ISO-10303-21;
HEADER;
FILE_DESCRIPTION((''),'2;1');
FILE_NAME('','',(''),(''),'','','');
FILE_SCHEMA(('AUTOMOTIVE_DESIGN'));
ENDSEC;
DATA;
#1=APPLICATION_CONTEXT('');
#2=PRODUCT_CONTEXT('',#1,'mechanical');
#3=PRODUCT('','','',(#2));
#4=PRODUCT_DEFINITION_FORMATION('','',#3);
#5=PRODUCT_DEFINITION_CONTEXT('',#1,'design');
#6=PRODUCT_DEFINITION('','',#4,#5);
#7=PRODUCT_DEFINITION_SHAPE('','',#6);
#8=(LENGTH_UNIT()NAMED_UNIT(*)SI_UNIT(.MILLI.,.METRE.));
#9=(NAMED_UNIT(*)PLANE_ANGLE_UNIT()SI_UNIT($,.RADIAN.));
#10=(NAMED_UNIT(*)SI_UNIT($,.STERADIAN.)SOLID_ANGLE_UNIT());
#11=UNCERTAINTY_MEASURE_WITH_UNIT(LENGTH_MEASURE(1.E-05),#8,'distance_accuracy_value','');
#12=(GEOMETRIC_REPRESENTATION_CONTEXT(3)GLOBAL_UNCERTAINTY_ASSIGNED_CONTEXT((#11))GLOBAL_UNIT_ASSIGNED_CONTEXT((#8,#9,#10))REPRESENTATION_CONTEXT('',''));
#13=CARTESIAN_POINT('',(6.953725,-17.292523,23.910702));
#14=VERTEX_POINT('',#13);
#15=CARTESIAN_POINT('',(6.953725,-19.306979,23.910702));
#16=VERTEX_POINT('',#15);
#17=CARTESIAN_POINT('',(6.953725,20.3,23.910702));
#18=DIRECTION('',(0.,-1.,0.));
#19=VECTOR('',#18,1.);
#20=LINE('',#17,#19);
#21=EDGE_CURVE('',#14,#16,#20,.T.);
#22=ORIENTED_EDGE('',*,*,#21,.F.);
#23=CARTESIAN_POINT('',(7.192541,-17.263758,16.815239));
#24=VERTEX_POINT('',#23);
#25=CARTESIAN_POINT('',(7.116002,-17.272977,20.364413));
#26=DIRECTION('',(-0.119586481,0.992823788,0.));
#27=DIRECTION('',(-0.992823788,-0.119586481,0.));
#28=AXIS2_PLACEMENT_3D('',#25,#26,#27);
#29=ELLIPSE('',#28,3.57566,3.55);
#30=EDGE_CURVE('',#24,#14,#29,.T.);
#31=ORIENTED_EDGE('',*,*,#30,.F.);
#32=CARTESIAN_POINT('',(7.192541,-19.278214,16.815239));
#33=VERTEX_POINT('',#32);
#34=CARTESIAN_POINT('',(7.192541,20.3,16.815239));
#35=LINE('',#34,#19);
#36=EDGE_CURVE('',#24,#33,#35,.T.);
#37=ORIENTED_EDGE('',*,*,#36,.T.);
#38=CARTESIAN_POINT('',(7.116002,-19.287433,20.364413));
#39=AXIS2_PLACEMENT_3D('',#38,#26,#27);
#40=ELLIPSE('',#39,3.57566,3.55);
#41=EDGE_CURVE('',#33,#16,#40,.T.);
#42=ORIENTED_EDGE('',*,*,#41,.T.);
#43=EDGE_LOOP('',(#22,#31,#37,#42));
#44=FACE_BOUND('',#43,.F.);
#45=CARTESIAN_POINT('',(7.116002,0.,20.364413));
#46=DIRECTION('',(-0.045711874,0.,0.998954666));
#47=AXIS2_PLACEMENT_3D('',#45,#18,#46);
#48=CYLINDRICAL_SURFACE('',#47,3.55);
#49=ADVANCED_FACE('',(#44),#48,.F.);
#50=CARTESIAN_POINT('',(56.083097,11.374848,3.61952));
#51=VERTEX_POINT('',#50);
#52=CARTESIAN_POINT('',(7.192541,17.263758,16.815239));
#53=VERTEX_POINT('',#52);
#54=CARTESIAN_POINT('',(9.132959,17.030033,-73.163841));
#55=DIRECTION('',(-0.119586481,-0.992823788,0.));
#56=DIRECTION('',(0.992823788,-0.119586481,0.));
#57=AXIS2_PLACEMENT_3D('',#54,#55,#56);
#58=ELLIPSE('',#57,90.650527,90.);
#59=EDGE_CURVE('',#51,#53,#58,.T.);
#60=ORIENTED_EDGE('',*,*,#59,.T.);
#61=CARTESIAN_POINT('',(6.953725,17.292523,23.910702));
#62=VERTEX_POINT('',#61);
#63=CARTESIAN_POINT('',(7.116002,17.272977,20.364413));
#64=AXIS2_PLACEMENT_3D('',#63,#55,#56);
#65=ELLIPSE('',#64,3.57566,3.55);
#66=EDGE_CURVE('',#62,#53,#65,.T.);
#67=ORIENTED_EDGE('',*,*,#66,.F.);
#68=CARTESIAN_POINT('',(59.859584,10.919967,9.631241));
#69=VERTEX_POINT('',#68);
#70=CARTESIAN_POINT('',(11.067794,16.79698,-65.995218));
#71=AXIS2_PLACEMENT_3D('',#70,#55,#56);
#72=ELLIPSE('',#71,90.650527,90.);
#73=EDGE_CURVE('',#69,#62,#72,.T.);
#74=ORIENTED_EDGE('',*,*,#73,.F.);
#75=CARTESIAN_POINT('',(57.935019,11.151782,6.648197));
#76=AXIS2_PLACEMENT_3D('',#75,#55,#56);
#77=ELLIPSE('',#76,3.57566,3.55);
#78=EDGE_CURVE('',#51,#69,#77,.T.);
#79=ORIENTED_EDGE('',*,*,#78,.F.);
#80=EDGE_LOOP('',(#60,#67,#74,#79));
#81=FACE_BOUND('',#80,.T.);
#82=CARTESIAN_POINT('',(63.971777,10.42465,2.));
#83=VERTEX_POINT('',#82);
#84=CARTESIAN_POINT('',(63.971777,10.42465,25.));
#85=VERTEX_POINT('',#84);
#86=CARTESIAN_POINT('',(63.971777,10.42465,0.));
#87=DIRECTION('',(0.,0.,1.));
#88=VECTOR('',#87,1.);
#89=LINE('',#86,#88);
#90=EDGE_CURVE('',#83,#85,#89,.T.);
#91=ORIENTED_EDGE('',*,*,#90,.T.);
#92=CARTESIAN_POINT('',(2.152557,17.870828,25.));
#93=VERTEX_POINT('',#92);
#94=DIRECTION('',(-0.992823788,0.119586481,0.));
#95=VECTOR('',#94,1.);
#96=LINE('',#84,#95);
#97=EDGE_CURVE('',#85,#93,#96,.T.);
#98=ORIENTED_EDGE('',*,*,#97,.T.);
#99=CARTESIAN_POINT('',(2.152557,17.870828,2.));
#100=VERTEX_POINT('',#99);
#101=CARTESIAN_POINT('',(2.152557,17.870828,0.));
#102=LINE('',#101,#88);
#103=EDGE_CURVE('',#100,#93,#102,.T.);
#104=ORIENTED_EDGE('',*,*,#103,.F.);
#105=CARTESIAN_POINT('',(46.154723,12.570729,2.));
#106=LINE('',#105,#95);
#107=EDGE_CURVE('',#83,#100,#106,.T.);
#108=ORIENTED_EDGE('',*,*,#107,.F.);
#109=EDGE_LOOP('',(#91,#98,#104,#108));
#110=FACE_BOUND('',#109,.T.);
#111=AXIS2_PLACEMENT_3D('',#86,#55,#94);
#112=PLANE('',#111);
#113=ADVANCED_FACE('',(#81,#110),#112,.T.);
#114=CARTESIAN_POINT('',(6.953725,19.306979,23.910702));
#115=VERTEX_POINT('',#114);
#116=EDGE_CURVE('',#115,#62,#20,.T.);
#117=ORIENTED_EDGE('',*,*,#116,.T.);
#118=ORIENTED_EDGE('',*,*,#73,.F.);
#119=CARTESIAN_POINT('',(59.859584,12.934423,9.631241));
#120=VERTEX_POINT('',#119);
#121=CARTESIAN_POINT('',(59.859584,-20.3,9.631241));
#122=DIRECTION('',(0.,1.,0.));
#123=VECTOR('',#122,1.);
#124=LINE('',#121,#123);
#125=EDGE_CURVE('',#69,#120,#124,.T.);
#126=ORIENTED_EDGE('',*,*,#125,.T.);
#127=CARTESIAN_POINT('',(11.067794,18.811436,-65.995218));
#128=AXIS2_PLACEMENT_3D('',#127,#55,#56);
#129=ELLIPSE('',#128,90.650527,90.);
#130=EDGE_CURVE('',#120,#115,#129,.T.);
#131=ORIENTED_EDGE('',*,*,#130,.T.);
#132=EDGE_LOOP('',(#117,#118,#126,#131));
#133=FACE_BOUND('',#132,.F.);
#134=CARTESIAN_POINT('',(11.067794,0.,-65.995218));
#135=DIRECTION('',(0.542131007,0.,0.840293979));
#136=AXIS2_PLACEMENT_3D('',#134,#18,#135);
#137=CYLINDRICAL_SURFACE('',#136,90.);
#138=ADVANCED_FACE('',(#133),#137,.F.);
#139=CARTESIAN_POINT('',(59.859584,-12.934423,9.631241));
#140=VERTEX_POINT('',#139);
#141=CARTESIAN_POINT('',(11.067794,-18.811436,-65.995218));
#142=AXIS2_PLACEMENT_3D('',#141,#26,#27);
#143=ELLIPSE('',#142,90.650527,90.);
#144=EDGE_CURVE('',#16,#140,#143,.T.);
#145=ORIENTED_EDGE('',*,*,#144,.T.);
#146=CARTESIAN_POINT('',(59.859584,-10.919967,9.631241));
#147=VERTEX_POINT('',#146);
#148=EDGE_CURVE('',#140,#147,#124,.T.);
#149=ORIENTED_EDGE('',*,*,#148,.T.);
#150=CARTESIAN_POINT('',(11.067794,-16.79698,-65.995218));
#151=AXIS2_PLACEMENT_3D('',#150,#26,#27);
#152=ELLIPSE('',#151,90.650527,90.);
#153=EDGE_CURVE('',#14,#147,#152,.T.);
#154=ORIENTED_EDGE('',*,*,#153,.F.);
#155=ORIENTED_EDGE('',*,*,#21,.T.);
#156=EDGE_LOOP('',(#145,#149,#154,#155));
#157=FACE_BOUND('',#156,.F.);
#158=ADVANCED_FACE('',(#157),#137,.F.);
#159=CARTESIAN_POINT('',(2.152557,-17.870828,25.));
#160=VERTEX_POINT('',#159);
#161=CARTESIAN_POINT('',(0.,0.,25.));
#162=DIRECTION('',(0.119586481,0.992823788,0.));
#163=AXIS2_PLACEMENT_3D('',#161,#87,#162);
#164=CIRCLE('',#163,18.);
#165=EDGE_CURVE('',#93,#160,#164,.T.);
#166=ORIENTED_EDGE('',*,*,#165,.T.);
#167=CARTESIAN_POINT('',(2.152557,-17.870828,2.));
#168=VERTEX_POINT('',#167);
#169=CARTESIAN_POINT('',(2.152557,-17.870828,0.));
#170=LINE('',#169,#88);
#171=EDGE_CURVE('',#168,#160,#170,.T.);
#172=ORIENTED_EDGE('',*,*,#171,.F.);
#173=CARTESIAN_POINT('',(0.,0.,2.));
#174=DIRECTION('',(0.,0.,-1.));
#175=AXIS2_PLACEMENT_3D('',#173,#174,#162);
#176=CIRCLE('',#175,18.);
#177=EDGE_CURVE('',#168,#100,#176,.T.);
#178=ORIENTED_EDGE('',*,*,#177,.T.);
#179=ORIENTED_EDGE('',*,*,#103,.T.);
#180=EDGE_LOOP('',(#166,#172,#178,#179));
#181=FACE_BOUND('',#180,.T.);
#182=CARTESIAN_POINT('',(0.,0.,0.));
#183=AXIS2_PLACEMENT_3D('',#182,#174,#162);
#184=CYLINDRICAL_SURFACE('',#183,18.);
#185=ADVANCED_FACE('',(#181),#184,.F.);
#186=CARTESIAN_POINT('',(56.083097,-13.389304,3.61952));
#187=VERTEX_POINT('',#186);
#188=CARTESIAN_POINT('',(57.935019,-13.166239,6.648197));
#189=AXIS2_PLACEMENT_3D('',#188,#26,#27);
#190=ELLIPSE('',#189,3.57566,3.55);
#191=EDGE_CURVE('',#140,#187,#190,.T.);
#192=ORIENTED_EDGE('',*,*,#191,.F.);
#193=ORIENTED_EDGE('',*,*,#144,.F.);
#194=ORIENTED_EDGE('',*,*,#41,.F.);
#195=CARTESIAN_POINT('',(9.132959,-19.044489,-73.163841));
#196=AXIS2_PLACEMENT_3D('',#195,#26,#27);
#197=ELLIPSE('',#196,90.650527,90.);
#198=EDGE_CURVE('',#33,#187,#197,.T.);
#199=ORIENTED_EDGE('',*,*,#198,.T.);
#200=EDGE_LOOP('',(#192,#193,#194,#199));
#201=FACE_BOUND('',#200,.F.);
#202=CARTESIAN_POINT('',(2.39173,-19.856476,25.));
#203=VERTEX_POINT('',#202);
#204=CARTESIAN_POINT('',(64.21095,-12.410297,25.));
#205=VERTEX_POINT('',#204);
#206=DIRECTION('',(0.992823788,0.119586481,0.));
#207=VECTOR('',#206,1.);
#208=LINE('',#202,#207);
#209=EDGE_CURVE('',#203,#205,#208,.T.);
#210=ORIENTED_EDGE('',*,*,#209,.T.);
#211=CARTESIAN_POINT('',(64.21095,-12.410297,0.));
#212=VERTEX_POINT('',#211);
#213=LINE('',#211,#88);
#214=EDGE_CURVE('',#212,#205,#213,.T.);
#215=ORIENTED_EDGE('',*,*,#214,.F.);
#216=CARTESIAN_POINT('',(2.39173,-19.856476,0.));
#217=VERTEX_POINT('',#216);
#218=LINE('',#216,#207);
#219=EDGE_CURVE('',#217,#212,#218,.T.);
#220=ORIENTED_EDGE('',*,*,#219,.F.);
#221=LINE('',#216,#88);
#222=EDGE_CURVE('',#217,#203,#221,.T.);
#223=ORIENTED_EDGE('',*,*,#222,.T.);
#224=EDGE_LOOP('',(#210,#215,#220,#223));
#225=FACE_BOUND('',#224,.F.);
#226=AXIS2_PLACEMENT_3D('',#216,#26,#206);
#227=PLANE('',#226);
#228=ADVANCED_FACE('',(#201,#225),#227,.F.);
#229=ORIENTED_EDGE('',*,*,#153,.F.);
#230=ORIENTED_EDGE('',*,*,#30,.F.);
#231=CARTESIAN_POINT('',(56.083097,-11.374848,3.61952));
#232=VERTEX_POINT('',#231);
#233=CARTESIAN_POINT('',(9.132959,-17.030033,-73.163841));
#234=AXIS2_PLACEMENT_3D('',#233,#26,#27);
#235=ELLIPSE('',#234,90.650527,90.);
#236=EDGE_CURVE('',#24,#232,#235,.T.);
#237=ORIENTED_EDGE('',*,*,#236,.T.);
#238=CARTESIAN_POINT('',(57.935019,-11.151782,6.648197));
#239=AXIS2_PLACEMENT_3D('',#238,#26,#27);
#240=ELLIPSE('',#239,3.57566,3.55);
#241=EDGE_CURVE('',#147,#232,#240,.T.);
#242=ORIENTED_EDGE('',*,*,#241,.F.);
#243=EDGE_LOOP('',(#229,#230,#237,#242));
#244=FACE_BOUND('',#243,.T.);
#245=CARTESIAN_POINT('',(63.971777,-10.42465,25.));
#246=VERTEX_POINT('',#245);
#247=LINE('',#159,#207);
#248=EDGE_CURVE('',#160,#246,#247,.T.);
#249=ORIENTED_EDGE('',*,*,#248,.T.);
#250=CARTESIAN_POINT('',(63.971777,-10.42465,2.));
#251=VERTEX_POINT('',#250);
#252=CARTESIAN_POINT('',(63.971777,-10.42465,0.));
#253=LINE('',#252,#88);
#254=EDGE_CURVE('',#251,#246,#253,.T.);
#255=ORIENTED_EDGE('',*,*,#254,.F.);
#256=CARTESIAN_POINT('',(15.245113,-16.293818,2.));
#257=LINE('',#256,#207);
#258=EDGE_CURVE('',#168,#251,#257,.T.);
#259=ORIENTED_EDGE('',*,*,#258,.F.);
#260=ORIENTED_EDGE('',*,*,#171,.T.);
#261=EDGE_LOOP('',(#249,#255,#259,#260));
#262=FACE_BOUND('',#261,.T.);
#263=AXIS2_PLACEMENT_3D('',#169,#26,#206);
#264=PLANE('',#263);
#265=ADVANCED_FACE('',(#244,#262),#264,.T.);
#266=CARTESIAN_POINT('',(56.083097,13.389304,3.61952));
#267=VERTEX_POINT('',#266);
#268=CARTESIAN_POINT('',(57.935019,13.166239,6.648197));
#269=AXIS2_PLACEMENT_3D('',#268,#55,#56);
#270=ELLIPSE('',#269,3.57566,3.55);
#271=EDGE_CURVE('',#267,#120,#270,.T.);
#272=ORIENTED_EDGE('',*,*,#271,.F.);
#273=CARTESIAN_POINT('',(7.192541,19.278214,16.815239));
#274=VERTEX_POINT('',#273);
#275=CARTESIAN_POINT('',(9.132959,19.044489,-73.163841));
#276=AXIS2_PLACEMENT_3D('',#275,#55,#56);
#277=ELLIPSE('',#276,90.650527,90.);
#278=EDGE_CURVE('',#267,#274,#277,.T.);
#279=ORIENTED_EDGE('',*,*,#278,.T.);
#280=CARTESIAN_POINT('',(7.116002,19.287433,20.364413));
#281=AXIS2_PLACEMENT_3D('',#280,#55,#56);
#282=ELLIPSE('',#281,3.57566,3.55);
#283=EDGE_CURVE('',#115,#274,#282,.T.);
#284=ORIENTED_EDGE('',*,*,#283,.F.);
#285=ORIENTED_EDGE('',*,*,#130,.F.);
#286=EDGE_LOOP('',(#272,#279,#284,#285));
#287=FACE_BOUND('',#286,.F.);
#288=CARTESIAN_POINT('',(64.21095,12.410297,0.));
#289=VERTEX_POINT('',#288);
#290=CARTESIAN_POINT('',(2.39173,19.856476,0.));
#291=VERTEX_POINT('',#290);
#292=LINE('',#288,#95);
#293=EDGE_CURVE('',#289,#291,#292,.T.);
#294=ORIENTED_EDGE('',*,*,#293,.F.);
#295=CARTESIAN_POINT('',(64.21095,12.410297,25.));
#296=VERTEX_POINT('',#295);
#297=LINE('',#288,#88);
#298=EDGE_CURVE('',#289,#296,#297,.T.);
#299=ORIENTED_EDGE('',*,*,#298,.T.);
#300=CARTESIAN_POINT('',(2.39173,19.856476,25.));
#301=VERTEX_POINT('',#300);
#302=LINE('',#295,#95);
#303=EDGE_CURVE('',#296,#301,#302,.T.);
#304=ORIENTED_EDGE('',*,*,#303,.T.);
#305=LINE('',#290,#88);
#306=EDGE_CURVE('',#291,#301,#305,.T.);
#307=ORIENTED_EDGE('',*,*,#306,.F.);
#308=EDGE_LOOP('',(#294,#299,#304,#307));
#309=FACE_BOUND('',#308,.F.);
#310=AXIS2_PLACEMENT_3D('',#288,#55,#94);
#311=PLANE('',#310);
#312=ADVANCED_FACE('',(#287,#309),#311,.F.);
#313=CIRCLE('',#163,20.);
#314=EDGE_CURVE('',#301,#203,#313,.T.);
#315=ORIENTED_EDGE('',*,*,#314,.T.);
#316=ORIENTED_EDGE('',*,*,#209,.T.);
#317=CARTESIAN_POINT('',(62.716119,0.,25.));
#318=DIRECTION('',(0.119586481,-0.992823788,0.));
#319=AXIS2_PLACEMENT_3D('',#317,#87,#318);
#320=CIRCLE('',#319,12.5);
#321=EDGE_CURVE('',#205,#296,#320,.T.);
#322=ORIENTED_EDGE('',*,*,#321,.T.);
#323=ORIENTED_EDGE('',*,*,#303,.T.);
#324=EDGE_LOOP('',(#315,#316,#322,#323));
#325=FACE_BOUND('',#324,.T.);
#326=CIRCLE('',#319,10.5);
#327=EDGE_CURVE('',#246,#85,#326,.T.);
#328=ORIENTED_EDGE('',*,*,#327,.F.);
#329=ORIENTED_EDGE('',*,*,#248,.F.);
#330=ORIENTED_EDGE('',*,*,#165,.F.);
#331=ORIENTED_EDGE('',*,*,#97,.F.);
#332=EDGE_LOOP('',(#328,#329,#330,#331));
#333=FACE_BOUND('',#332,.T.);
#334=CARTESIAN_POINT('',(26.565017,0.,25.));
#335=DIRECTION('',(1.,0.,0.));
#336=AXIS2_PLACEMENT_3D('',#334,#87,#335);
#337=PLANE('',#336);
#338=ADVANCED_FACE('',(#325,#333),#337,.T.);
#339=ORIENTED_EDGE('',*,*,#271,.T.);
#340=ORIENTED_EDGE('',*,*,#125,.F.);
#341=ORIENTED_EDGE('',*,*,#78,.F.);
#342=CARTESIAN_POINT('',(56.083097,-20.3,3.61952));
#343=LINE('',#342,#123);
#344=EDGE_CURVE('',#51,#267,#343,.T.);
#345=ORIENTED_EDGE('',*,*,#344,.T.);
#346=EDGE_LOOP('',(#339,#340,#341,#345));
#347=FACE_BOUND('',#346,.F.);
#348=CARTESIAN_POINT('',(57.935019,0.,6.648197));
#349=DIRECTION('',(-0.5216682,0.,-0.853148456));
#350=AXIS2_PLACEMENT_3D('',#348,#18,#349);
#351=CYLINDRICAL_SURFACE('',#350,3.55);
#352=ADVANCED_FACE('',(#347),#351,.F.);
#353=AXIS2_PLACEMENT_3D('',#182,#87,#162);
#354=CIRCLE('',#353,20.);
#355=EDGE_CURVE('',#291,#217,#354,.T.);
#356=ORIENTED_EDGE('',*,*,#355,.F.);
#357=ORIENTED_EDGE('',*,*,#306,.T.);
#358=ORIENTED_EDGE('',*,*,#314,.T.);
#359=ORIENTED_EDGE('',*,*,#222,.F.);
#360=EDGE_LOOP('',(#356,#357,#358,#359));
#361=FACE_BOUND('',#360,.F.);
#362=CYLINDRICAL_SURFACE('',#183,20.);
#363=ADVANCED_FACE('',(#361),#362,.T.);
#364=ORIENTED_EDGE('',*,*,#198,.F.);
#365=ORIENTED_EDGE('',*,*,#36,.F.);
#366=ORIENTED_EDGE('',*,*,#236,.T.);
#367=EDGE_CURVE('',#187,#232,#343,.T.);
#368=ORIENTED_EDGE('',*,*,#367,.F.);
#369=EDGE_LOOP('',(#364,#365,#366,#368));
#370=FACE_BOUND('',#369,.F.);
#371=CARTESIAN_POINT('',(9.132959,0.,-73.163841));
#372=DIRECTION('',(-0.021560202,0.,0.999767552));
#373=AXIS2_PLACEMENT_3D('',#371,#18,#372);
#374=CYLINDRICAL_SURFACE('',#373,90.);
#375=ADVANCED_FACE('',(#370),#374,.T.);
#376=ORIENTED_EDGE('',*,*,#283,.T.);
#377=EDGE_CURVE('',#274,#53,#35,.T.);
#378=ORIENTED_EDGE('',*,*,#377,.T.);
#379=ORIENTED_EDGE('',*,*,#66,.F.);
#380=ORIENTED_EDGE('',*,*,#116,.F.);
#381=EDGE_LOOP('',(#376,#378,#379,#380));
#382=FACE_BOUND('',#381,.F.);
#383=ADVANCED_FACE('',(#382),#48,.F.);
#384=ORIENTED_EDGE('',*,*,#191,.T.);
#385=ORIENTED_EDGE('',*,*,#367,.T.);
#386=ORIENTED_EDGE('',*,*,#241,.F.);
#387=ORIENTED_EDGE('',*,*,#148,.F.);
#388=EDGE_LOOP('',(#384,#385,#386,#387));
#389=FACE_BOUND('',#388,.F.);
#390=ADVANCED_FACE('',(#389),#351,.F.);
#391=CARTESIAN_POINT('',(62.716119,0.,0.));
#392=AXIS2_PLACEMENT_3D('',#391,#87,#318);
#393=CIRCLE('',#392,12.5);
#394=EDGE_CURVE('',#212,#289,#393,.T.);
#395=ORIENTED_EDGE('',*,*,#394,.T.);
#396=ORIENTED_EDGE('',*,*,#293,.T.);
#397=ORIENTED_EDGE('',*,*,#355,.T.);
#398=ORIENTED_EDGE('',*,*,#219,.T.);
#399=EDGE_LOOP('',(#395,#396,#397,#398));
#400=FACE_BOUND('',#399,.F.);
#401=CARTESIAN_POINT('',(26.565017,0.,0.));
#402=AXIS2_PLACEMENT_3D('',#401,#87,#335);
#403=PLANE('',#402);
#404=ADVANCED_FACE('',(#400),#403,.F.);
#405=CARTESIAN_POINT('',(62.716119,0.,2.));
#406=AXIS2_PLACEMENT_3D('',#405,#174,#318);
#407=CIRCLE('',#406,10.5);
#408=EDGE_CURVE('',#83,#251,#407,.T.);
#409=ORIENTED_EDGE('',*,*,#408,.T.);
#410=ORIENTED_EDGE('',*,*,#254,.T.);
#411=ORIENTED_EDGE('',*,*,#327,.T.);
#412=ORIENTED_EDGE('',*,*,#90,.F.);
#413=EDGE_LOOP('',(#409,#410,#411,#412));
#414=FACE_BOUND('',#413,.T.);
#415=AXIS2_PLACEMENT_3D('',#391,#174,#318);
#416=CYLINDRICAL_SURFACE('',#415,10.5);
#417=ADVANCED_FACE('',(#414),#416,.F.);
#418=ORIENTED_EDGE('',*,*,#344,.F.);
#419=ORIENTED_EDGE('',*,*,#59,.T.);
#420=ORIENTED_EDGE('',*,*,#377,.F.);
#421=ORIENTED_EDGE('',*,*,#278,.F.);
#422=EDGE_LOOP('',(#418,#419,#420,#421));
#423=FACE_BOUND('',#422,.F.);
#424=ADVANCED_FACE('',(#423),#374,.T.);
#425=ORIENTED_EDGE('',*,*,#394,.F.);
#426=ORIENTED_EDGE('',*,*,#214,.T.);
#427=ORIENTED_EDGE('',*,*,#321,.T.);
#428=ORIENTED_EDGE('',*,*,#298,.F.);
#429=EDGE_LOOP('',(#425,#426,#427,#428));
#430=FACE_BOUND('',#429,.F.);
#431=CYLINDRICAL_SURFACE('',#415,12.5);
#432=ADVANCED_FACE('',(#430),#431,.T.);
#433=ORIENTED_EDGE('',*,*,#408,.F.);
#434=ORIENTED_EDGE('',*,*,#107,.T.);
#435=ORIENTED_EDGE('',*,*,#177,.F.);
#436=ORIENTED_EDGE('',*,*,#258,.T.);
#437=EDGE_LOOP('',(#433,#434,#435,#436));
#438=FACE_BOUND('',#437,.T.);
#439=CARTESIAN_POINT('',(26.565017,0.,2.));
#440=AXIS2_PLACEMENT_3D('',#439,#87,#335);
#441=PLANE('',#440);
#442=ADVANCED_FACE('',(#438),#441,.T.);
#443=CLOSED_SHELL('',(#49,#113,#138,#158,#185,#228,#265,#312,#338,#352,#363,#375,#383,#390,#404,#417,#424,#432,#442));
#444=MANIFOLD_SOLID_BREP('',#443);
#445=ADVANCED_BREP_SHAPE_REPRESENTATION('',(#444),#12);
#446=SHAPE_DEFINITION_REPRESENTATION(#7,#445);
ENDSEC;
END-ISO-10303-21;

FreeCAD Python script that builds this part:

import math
import FreeCAD as App
import Part
import Sketcher
Q = App.Units.Quantity


def faces_at(feature, points):
    """Names of the faces that lie closest to the given points."""
    faces = feature.Shape.Faces
    near = lambda p: min(range(len(faces)), key=lambda i: faces[i].distToShape(Part.Vertex(*p))[0])
    return sorted({f"Face{near(p) + 1}" for p in points})

doc = App.newDocument("Part")
body = doc.addObject("PartDesign::Body", "Body")

# Sketch on XY plane
sketch1 = body.newObject("Sketcher::SketchObject", "Sketch")
sketch1.AttachmentSupport = (doc.getObject("XY_Plane"), [""])
sketch1.MapMode = "FlatFace"
sketch1.addGeometry(Part.LineSegment(App.Vector(64, 12, 0), App.Vector(2, 20, 0)), False)
sketch1.addGeometry(Part.ArcOfCircle(Part.Circle(App.Vector(0, 0, 0), App.Vector(0, 0, 1), 20), math.radians(83), math.radians(277)), False)
sketch1.addGeometry(Part.LineSegment(App.Vector(2, -20, 0), App.Vector(64, -12, 0)), False)
sketch1.addGeometry(Part.ArcOfCircle(Part.Circle(App.Vector(63, 0, 0), App.Vector(0, 0, 1), 12), math.radians(-83), math.radians(83)), False)
sketch1.addConstraint(Sketcher.Constraint("Tangent", 0, 2, 1, 1))
sketch1.addConstraint(Sketcher.Constraint("Tangent", 1, 2, 2, 1))
sketch1.addConstraint(Sketcher.Constraint("Tangent", 2, 2, 3, 1))
sketch1.addConstraint(Sketcher.Constraint("Tangent", 3, 2, 0, 1))
sketch1.addConstraint(Sketcher.Constraint("Coincident", 1, 3, -1, 1))
sketch1.addConstraint(Sketcher.Constraint("PointOnObject", 3, 3, -1))
sketch1.addConstraint(Sketcher.Constraint("Radius", 1, Q("20 mm")))
sketch1.addConstraint(Sketcher.Constraint("Radius", 3, Q("12.5 mm")))
sketch1.addConstraint(Sketcher.Constraint("DistanceX", -1, 1, 3, 3, Q("62.716119 mm")))
pad1 = body.newObject("PartDesign::Pad", "Pad")
pad1.Profile = sketch1
pad1.Length = 25
doc.recompute()

thickness = body.newObject("PartDesign::Thickness", "Thickness")
thickness.Base = (pad1, faces_at(pad1, [(27.608, 0, 25)]))
thickness.Value = 2
thickness.Reversed = True
thickness.Join = "Arc"

# Sketch on XZ plane
sketch2 = body.newObject("Sketcher::SketchObject", "Sketch001")
sketch2.AttachmentSupport = (doc.getObject("XZ_Plane"), [""])
sketch2.MapMode = "FlatFace"
sketch2.addGeometry(Part.ArcOfCircle(Part.Circle(App.Vector(11.1, -66, 0), App.Vector(0, 0, 1), 90), math.radians(57), math.radians(93)), False)
sketch2.addGeometry(Part.ArcOfCircle(Part.Circle(App.Vector(7.1, 20.4, 0), App.Vector(0, 0, 1), 3.5), math.radians(93), math.radians(271)), False)
sketch2.addGeometry(Part.ArcOfCircle(Part.Circle(App.Vector(9.1, -73.2, 0), App.Vector(0, 0, 1), 90), math.radians(59), math.radians(91)), False)
sketch2.addGeometry(Part.ArcOfCircle(Part.Circle(App.Vector(57.9, 6.6, 0), App.Vector(0, 0, 1), 3.5), math.radians(-121), math.radians(57)), False)
sketch2.addConstraint(Sketcher.Constraint("Tangent", 0, 2, 1, 1))
sketch2.addConstraint(Sketcher.Constraint("Tangent", 1, 2, 2, 2))
sketch2.addConstraint(Sketcher.Constraint("Tangent", 2, 1, 3, 1))
sketch2.addConstraint(Sketcher.Constraint("Tangent", 3, 2, 0, 1))
sketch2.addConstraint(Sketcher.Constraint("Equal", 0, 2))
sketch2.addConstraint(Sketcher.Constraint("Equal", 1, 3))
sketch2.addConstraint(Sketcher.Constraint("Radius", 0, Q("90 mm")))
sketch2.addConstraint(Sketcher.Constraint("Radius", 1, Q("3.55 mm")))
sketch2.addConstraint(Sketcher.Constraint("DistanceX", -1, 1, 2, 3, Q("9.132959 mm")))
sketch2.addConstraint(Sketcher.Constraint("DistanceY", 2, 3, -1, 1, Q("73.163841 mm")))
sketch2.addConstraint(Sketcher.Constraint("DistanceX", -1, 1, 3, 3, Q("57.935019 mm")))
sketch2.addConstraint(Sketcher.Constraint("DistanceX", -1, 1, 1, 2, Q("7.192541 mm")))
pocket1 = body.newObject("PartDesign::Pocket", "Pocket")
pocket1.Profile = sketch2
pocket1.Length = 40.6
pocket1.Midplane = True

doc.recompute()
